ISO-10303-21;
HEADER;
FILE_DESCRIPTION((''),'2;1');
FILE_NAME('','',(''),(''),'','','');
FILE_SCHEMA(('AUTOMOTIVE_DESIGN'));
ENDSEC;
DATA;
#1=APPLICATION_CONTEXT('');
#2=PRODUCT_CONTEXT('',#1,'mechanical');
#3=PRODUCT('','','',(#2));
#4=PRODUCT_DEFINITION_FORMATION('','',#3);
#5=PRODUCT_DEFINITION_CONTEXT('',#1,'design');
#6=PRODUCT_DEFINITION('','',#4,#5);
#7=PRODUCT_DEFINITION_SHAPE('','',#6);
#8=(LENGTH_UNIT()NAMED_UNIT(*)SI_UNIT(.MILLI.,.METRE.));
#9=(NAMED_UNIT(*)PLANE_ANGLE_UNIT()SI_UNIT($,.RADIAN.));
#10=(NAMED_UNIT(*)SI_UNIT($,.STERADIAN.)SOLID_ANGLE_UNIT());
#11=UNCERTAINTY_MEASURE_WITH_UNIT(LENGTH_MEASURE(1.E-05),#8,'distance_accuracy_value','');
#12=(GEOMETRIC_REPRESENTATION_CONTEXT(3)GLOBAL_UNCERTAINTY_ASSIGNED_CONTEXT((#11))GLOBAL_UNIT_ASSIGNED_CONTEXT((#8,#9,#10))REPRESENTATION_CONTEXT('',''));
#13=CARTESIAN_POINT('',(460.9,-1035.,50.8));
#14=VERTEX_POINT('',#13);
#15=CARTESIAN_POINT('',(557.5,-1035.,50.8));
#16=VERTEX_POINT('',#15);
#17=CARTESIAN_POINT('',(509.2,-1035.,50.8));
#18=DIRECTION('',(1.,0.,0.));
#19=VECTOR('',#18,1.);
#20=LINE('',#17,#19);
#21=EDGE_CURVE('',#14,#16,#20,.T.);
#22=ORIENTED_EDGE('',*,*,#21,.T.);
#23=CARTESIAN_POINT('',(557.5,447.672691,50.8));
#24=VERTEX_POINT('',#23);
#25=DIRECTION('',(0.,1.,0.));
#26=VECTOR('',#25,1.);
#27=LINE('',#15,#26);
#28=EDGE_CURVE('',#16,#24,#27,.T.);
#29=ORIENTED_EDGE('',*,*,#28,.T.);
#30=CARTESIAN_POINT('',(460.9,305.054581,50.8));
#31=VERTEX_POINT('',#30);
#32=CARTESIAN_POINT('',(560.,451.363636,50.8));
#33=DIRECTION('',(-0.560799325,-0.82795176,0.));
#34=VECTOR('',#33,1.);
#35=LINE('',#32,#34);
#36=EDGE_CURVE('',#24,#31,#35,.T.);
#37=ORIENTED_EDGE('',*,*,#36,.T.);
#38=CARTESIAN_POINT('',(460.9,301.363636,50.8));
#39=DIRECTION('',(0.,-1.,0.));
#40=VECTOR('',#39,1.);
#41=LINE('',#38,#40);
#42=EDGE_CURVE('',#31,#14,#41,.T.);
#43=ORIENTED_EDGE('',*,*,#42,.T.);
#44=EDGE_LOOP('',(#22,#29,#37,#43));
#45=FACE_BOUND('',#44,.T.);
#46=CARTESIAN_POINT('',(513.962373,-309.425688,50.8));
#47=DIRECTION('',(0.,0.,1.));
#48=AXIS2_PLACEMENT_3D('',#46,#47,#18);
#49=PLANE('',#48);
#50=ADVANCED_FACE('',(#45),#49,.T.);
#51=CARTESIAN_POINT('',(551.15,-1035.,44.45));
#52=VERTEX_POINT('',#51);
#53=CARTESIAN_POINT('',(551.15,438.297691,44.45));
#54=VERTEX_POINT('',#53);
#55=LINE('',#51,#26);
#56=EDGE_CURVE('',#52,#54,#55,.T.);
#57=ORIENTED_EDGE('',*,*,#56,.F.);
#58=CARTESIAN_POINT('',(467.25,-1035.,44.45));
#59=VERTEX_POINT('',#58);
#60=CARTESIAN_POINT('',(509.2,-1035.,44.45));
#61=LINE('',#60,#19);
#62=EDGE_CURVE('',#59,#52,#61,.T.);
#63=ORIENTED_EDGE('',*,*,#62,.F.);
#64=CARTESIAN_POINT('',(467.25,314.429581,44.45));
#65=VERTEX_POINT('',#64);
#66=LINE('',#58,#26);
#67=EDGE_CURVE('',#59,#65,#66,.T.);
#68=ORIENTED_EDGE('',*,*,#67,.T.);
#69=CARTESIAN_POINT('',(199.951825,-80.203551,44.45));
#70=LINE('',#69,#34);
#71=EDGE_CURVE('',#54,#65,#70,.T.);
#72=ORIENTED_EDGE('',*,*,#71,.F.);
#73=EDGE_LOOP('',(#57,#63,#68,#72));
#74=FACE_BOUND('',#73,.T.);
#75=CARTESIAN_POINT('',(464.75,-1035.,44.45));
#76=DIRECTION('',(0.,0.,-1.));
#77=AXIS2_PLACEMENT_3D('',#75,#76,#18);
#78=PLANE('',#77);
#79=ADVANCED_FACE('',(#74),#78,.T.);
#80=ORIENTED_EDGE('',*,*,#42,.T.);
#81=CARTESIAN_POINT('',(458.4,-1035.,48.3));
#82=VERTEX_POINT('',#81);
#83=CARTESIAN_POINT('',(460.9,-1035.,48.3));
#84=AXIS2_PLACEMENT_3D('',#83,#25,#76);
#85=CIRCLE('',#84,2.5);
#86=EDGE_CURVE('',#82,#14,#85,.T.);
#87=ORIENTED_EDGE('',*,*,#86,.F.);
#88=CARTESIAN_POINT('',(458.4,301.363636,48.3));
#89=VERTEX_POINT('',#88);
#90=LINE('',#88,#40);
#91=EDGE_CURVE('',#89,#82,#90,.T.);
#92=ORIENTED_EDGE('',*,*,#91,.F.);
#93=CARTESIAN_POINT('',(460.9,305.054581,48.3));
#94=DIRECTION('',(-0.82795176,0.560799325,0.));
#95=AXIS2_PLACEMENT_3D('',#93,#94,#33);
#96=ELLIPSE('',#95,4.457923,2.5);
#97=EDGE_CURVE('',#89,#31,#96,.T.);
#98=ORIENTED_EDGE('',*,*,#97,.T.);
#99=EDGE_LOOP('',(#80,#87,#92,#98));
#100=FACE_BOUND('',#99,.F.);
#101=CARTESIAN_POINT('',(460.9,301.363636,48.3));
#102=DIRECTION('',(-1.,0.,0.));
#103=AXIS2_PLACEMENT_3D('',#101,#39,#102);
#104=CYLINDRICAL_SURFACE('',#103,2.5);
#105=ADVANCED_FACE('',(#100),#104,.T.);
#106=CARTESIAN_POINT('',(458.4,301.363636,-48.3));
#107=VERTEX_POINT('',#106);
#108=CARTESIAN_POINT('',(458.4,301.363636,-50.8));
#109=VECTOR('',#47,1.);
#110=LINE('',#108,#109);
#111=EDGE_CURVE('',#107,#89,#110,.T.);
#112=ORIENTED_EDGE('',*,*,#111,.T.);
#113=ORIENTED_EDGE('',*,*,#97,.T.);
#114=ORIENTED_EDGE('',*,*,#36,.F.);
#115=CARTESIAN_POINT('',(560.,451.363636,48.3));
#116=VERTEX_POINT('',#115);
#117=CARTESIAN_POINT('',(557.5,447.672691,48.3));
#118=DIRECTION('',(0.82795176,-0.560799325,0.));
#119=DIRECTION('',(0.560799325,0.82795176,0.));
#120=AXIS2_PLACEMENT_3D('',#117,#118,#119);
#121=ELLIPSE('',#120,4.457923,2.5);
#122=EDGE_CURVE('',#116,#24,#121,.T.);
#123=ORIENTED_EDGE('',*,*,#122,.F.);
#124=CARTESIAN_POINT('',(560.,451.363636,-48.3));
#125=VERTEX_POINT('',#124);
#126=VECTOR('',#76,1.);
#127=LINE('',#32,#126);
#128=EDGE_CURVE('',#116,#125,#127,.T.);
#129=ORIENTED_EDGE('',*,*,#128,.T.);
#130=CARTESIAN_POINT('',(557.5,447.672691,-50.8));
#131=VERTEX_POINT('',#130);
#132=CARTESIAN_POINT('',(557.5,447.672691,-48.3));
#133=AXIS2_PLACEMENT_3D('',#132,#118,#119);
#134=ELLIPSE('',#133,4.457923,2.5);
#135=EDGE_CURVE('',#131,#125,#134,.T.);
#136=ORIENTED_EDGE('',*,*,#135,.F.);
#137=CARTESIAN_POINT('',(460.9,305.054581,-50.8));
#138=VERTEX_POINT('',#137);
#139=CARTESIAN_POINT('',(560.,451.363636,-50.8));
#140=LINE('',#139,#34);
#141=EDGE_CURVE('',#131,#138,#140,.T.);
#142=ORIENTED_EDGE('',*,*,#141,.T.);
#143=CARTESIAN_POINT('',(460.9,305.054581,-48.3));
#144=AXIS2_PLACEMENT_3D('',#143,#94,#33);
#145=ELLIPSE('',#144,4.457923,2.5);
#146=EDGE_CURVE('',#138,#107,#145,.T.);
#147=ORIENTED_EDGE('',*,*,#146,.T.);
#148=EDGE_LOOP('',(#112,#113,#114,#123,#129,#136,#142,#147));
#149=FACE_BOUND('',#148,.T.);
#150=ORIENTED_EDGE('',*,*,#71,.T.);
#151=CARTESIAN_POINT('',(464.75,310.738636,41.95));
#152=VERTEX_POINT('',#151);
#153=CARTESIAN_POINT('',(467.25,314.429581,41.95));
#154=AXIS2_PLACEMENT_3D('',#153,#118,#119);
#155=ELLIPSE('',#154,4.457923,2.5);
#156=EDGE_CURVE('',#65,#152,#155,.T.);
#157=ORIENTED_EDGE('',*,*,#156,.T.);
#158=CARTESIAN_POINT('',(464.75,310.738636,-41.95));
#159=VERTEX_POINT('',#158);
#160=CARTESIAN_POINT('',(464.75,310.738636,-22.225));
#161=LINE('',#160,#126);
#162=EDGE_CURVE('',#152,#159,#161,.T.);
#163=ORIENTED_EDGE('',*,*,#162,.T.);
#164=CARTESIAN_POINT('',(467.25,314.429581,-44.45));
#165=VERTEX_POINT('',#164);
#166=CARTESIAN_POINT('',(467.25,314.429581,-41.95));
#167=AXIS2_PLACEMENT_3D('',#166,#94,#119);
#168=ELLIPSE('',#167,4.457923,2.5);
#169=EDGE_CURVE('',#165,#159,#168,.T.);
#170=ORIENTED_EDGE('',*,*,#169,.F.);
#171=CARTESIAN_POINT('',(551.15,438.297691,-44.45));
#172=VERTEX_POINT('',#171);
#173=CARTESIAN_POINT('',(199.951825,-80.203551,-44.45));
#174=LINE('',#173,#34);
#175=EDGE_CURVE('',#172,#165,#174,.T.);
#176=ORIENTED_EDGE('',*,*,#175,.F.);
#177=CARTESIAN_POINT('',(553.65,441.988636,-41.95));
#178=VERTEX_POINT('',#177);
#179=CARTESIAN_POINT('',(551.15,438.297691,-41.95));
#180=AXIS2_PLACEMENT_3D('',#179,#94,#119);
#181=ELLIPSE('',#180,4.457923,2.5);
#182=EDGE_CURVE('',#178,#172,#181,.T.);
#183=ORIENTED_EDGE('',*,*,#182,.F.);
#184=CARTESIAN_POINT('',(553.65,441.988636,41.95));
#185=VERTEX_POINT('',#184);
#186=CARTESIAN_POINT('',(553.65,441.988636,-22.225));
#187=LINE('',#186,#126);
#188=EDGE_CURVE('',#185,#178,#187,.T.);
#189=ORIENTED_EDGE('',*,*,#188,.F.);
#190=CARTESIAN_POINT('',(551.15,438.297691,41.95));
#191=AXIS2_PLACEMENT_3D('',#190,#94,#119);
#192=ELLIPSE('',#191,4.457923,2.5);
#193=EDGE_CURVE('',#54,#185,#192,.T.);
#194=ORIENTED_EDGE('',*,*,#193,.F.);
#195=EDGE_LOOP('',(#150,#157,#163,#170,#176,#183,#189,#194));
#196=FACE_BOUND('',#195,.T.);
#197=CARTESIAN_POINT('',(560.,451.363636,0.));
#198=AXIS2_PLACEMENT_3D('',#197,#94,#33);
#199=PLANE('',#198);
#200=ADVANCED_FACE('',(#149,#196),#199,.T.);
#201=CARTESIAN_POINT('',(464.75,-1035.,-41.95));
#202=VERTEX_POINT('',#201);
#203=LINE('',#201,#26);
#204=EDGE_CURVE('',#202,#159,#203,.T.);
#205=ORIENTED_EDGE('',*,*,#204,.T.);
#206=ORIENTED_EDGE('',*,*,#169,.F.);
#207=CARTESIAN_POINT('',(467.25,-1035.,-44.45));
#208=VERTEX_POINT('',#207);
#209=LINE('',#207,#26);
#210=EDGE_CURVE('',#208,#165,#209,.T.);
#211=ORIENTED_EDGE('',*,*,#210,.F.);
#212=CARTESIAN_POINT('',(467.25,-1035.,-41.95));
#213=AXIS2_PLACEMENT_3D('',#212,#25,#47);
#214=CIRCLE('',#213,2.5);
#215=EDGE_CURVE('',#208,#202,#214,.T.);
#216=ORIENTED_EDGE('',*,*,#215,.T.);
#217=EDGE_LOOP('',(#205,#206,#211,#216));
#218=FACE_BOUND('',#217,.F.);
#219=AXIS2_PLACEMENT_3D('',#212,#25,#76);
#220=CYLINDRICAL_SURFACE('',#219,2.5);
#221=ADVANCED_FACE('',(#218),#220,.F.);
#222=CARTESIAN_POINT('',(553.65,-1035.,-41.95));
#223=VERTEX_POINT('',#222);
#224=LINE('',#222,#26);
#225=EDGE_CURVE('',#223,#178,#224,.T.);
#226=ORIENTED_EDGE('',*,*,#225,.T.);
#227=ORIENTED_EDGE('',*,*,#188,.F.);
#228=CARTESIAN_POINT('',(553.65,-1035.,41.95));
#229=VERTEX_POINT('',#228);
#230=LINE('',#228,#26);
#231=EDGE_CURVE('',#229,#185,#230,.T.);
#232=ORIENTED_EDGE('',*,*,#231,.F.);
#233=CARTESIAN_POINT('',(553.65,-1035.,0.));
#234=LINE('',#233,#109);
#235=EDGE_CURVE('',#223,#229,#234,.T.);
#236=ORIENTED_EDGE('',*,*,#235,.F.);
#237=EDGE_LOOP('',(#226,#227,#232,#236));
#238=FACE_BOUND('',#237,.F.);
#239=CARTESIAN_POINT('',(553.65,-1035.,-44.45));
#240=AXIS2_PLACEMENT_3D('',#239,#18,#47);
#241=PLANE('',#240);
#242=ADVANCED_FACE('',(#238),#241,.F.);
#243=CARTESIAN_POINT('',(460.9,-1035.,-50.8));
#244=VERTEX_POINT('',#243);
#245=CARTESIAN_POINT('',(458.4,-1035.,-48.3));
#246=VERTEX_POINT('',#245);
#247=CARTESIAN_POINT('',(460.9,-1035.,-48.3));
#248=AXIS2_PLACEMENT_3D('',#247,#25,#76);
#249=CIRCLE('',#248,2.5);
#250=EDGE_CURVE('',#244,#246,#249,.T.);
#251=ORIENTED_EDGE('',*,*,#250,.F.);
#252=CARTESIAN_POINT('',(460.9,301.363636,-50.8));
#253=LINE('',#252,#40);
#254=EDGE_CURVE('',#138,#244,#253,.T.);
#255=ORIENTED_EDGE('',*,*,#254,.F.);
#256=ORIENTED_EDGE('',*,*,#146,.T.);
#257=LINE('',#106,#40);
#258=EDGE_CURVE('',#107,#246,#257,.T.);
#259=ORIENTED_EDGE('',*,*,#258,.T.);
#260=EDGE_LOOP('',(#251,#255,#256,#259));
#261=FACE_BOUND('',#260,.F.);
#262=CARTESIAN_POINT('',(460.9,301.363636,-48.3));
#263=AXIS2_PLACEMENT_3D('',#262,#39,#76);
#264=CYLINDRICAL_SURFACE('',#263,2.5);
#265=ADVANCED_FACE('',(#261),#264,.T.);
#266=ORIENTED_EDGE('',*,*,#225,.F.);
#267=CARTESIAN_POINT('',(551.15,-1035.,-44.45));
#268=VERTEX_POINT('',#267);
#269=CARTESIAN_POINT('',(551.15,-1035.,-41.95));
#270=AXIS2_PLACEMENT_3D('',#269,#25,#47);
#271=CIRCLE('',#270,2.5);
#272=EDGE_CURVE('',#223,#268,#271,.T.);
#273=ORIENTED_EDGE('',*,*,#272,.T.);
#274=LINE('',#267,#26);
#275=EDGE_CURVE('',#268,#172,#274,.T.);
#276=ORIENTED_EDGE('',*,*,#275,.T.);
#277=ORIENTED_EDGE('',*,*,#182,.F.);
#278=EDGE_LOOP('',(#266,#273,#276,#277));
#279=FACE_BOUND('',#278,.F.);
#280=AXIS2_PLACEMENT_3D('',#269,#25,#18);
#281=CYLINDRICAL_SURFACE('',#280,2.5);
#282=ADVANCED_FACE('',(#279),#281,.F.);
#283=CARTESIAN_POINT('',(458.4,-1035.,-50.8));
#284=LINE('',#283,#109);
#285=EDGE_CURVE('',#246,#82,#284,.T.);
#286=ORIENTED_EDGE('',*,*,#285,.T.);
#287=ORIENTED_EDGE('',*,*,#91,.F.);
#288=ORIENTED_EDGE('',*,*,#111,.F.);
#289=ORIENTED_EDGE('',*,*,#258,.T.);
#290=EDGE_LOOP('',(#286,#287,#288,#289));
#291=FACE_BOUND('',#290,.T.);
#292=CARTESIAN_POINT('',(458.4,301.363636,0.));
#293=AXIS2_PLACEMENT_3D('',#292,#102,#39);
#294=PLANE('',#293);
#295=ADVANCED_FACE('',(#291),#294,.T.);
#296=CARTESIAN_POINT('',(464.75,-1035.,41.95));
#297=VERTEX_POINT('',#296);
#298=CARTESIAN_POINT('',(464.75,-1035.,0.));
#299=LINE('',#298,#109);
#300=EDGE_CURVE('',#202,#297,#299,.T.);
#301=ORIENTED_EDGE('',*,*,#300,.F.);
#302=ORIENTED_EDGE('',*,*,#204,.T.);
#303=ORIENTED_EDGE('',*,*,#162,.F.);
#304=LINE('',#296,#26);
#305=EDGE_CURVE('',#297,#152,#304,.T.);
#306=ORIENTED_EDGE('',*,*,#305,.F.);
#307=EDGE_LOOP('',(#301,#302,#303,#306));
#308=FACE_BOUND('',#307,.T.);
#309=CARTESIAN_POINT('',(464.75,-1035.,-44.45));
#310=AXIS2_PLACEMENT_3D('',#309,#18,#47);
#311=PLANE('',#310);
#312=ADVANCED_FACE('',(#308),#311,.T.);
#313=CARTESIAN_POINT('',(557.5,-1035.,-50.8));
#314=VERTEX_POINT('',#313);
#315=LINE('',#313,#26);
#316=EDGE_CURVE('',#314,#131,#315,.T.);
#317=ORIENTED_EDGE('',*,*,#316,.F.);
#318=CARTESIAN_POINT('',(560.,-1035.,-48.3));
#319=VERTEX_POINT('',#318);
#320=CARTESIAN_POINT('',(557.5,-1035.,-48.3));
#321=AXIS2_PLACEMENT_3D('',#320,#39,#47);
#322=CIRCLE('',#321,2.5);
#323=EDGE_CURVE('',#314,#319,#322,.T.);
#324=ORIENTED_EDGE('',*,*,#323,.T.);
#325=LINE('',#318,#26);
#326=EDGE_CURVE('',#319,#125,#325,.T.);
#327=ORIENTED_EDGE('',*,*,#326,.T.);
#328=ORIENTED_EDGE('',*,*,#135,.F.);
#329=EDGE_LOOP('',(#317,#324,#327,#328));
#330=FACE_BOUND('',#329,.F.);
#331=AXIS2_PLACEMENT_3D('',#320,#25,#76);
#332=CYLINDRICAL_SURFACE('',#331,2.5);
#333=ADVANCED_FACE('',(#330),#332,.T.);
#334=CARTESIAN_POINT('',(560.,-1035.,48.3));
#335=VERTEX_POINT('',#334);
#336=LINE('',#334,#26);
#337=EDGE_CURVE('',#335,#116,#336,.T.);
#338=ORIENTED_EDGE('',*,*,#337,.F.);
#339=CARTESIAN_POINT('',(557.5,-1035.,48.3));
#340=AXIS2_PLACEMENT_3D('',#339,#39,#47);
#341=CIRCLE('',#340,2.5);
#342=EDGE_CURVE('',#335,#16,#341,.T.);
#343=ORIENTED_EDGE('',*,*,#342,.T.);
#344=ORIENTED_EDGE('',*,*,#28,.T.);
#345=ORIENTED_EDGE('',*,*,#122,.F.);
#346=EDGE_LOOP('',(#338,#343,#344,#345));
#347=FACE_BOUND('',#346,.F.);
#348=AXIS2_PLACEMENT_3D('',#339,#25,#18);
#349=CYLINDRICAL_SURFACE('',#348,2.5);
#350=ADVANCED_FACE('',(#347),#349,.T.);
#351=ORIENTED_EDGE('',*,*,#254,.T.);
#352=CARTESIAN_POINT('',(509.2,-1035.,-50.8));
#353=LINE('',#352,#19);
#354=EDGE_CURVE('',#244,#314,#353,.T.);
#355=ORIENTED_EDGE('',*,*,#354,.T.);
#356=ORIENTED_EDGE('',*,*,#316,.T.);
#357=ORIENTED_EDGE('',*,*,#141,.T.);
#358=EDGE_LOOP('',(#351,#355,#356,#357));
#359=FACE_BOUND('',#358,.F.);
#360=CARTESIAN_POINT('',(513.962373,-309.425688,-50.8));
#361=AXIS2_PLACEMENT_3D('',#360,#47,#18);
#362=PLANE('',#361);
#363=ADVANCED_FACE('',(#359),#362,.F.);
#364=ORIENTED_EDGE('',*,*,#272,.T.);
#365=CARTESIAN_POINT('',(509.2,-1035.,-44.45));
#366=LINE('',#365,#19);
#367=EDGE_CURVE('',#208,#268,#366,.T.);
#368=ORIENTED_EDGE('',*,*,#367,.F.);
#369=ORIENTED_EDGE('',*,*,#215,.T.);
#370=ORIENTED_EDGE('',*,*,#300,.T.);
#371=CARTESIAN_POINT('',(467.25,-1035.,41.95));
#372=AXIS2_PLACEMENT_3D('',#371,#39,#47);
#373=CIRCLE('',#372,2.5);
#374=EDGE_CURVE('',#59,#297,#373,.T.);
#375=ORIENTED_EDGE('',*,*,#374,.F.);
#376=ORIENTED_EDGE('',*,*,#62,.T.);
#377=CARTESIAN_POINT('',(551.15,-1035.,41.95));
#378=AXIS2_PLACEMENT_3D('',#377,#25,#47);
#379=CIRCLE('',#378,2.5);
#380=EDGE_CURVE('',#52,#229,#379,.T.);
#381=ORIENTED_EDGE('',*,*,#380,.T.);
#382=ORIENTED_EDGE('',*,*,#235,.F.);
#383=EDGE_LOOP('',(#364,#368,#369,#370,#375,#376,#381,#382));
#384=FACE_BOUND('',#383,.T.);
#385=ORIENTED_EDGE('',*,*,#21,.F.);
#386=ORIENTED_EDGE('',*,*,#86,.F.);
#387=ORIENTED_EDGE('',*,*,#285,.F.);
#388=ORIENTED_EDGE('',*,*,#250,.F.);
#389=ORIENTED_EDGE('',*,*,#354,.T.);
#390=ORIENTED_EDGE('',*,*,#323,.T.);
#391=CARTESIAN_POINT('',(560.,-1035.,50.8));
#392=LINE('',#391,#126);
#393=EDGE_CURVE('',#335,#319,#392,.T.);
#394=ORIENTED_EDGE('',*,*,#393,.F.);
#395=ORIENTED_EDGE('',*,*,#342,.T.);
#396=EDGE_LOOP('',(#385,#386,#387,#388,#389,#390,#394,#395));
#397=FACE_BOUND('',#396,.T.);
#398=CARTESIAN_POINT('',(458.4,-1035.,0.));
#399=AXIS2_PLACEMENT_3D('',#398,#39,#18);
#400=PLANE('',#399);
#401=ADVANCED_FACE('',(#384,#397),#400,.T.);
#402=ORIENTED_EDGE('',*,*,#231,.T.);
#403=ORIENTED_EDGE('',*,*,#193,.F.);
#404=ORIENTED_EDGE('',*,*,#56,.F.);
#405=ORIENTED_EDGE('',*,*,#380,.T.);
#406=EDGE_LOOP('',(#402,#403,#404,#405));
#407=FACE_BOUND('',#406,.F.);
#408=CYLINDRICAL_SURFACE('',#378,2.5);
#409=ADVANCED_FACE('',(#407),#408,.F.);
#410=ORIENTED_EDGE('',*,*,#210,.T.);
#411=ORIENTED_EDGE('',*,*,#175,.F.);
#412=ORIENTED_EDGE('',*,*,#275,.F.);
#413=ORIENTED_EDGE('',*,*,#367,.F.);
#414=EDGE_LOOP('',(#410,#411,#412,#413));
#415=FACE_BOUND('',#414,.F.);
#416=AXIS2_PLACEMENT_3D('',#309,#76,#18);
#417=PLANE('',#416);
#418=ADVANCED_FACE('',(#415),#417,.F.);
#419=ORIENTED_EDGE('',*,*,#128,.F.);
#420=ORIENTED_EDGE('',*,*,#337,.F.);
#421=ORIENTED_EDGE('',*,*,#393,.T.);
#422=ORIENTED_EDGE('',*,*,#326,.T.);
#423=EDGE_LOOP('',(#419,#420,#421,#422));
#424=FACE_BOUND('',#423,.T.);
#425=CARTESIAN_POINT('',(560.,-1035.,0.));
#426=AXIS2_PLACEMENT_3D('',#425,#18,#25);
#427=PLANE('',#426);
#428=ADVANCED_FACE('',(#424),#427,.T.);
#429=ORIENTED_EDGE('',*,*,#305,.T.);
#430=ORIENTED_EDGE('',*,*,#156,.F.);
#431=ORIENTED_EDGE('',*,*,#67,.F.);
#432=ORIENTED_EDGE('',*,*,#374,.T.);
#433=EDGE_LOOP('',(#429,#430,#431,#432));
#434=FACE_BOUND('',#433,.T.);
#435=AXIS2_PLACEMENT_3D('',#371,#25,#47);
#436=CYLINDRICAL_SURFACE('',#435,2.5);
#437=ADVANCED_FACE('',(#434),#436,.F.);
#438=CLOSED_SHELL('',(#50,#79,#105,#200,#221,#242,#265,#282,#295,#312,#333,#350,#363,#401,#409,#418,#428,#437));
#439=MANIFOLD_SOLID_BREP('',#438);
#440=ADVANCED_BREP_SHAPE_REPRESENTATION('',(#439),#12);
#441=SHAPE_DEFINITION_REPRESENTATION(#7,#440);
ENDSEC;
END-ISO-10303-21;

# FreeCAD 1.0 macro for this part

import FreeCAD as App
import Part
import Sketcher
Q = App.Units.Quantity


def edges_at(feature, points):
    """Names of the edges that pass closest to the given points."""
    edges = feature.Shape.Edges
    near = lambda p: min(range(len(edges)), key=lambda i: edges[i].distToShape(Part.Vertex(*p))[0])
    return sorted({f"Edge{near(p) + 1}" for p in points})

doc = App.newDocument("Part")
params = doc.addObject("Spreadsheet::Sheet", "Params")
for row, (alias, value) in enumerate([
    ("sketch1_width", "4 in"),
    ("pad1_length", "4 in"),
    ("sketch2_width", "3.5 in"),
    ("fillet_radius", "2.5 mm"),
], start=1):
    params.set(f"A{row}", alias)
    params.set(f"B{row}", "=" + value)
    params.setAlias(f"B{row}", alias)

body = doc.addObject("PartDesign::Body", "Body")

# Sketch on XY plane
sketch1 = body.newObject("Sketcher::SketchObject", "Sketch")
sketch1.AttachmentSupport = (doc.getObject("XY_Plane"), [""])
sketch1.MapMode = "FlatFace"
sketch1.addGeometry(Part.LineSegment(App.Vector(560, 451, 0), App.Vector(458, 301, 0)), False)
sketch1.addGeometry(Part.LineSegment(App.Vector(458, 301, 0), App.Vector(458, -1035, 0)), False)
sketch1.addGeometry(Part.LineSegment(App.Vector(458, -1035, 0), App.Vector(560, -1035, 0)), False)
sketch1.addGeometry(Part.LineSegment(App.Vector(560, -1035, 0), App.Vector(560, 451, 0)), False)
sketch1.addConstraint(Sketcher.Constraint("Coincident", 0, 2, 1, 1))
sketch1.addConstraint(Sketcher.Constraint("Coincident", 1, 2, 2, 1))
sketch1.addConstraint(Sketcher.Constraint("Coincident", 2, 2, 3, 1))
sketch1.addConstraint(Sketcher.Constraint("Coincident", 3, 2, 0, 1))
sketch1.addConstraint(Sketcher.Constraint("Vertical", 1))
sketch1.addConstraint(Sketcher.Constraint("Horizontal", 2))
sketch1.addConstraint(Sketcher.Constraint("Vertical", 3))
sketch1.addConstraint(Sketcher.Constraint("DistanceX", 2, 1, 2, 2, Q("4 in")))
sketch1.addConstraint(Sketcher.Constraint("DistanceX", -1, 1, 0, 2, Q("458.4 mm")))
sketch1.addConstraint(Sketcher.Constraint("DistanceY", 1, 2, -1, 1, Q("1035 mm")))
sketch1.addConstraint(Sketcher.Constraint("DistanceY", 0, 2, 3, 2, Q("150 mm")))
sketch1.addConstraint(Sketcher.Constraint("DistanceY", 1, 2, 1, 1, Q("1336.363636 mm")))
sketch1.setExpression("Constraints[7]", "Params.sketch1_width")
pad1 = body.newObject("PartDesign::Pad", "Pad")
pad1.Profile = sketch1
pad1.setExpression("Length", "Params.pad1_length")
pad1.Midplane = True

# Sketch on XZ plane
sketch2 = body.newObject("Sketcher::SketchObject", "Sketch001")
sketch2.AttachmentSupport = (doc.getObject("XZ_Plane"), [""])
sketch2.MapMode = "FlatFace"
sketch2.AttachmentOffset = App.Placement(App.Vector(0, 0, 1035), App.Rotation())
sketch2.addGeometry(Part.LineSegment(App.Vector(465, 44, 0), App.Vector(465, -44, 0)), False)
sketch2.addGeometry(Part.LineSegment(App.Vector(465, -44, 0), App.Vector(554, -44, 0)), False)
sketch2.addGeometry(Part.LineSegment(App.Vector(554, -44, 0), App.Vector(554, 44, 0)), False)
sketch2.addGeometry(Part.LineSegment(App.Vector(554, 44, 0), App.Vector(465, 44, 0)), False)
sketch2.addConstraint(Sketcher.Constraint("Coincident", 0, 2, 1, 1))
sketch2.addConstraint(Sketcher.Constraint("Coincident", 1, 2, 2, 1))
sketch2.addConstraint(Sketcher.Constraint("Coincident", 2, 2, 3, 1))
sketch2.addConstraint(Sketcher.Constraint("Coincident", 3, 2, 0, 1))
sketch2.addConstraint(Sketcher.Constraint("Vertical", 0))
sketch2.addConstraint(Sketcher.Constraint("Horizontal", 1))
sketch2.addConstraint(Sketcher.Constraint("Vertical", 2))
sketch2.addConstraint(Sketcher.Constraint("Horizontal", 3))
sketch2.addConstraint(Sketcher.Constraint("Equal", 3, 0))
sketch2.addConstraint(Sketcher.Constraint("DistanceX", 1, 1, 1, 2, Q("3.5 in")))
sketch2.addConstraint(Sketcher.Constraint("DistanceY", 0, 2, -1, 1, Q("1.75 in")))
sketch2.addConstraint(Sketcher.Constraint("DistanceX", -1, 1, 0, 2, Q("464.75 mm")))
sketch2.setExpression("Constraints[9]", "Params.sketch2_width")
pocket1 = body.newObject("PartDesign::Pocket", "Pocket")
pocket1.Profile = sketch2
pocket1.Type = "ThroughAll"
doc.recompute()

fillet = body.newObject("PartDesign::Fillet", "Fillet")
fillet.Base = (pocket1, edges_at(pocket1, [
    (560, -291.818, 50.8),
    (458.4, -366.818, 50.8),
    (458.4, -366.818, -50.8),
    (560, -291.818, -50.8),
    (464.75, -362.131, 44.45),
    (553.65, -296.506, 44.45),
    (553.65, -296.506, -44.45),
    (464.75, -362.131, -44.45),
]))
fillet.setExpression("Radius", "Params.fillet_radius")

doc.recompute()
